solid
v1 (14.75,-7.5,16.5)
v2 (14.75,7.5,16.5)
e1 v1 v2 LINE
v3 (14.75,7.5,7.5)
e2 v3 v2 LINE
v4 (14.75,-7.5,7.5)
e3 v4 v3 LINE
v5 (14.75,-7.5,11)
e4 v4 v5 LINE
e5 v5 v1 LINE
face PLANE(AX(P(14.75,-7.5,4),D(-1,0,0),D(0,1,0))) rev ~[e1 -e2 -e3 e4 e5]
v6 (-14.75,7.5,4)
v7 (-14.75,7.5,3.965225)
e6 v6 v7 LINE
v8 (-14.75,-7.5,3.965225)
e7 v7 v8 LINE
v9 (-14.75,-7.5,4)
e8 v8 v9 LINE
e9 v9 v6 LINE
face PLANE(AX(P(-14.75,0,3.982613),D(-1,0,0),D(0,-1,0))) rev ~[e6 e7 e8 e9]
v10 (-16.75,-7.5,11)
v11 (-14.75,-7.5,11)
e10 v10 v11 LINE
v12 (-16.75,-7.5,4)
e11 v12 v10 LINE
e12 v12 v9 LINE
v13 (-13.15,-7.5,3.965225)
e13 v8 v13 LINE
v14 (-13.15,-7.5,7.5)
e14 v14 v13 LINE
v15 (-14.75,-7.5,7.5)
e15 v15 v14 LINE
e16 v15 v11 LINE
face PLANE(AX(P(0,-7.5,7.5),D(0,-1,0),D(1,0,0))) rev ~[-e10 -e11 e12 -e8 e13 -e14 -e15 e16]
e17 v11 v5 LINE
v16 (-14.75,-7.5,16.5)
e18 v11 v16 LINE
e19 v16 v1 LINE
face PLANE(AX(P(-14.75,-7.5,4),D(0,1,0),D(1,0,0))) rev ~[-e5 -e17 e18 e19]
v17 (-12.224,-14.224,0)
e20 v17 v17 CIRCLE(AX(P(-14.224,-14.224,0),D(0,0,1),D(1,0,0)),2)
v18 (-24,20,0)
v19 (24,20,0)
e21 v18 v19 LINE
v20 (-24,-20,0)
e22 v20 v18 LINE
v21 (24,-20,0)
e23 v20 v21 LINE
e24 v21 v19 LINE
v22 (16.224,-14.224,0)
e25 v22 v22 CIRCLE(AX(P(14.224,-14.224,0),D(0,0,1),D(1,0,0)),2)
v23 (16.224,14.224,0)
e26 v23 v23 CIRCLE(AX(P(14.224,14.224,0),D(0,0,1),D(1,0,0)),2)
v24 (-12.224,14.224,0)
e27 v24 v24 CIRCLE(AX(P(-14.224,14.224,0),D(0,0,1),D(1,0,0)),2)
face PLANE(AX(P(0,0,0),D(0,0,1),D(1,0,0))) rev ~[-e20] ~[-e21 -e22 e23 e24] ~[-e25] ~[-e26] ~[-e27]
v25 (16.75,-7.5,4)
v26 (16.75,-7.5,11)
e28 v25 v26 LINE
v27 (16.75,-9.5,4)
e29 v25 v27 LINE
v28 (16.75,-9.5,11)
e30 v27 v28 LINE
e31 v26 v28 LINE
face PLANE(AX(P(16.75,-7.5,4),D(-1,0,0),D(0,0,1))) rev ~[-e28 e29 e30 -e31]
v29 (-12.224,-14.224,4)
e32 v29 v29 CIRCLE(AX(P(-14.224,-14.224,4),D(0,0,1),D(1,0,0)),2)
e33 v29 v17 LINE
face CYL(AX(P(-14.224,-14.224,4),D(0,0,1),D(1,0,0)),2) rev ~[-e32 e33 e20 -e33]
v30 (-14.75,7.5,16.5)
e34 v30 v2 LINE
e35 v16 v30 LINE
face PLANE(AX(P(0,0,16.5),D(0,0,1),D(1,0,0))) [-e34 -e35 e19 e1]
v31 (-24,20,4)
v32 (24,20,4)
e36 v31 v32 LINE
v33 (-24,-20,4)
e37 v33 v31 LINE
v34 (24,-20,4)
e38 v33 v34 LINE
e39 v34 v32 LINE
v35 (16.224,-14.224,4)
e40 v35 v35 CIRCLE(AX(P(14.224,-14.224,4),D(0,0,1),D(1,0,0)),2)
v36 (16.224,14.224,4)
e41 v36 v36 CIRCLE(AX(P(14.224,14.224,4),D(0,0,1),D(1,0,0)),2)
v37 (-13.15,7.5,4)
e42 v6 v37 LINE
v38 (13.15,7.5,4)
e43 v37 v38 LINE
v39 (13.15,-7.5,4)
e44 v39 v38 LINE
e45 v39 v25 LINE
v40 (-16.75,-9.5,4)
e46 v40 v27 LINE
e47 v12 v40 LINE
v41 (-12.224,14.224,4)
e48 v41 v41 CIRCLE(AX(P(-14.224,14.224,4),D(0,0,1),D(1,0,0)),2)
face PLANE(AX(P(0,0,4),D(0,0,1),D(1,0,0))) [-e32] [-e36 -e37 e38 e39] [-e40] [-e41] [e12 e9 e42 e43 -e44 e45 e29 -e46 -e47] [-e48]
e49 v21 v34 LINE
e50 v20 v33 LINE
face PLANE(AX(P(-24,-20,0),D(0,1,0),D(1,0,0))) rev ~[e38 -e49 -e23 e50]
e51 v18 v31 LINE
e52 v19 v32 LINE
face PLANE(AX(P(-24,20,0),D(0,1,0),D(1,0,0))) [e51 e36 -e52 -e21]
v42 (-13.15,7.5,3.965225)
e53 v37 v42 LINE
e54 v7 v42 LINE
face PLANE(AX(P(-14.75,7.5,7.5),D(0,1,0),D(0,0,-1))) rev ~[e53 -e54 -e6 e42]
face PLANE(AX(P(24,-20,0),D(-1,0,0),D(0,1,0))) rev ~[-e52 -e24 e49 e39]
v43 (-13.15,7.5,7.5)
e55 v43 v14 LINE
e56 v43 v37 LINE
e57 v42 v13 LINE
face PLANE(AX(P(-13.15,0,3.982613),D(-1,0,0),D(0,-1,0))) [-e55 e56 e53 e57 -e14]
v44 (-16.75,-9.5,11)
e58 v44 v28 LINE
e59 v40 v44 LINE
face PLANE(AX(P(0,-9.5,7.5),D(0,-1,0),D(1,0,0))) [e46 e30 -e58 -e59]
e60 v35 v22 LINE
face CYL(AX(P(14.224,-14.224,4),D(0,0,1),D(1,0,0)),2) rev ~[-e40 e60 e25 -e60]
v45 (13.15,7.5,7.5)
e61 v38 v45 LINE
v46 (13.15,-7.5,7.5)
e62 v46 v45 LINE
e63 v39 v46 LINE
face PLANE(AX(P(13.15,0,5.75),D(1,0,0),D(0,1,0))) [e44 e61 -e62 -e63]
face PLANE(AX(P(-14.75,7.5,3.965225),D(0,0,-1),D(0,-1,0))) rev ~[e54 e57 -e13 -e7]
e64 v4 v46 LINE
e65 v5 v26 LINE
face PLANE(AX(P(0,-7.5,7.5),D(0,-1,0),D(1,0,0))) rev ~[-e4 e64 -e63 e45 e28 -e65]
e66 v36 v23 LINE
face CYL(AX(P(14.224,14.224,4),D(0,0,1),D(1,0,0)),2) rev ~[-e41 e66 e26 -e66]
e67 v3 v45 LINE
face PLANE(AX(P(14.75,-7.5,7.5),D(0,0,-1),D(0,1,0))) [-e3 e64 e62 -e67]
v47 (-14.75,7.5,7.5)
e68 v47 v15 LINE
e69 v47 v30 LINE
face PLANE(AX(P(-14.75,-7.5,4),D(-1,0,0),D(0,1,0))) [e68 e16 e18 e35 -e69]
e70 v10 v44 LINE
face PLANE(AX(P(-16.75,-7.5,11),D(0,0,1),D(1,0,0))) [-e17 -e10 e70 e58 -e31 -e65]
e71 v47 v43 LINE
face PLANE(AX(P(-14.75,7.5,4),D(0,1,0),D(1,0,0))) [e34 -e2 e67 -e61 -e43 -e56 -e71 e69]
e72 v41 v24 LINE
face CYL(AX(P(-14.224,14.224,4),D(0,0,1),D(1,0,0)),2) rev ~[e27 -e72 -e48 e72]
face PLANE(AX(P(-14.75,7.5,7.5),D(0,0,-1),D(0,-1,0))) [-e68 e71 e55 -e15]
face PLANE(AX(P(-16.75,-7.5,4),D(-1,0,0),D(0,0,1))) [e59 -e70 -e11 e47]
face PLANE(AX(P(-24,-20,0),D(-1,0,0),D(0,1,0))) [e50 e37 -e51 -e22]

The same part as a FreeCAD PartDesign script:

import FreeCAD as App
import Part
import Sketcher
Q = App.Units.Quantity

doc = App.newDocument("Part")
body = doc.addObject("PartDesign::Body", "Body")

# Sketch on XY plane
sketch1 = body.newObject("Sketcher::SketchObject", "Sketch")
sketch1.AttachmentSupport = (doc.getObject("XY_Plane"), [""])
sketch1.MapMode = "FlatFace"
sketch1.addGeometry([
    Part.LineSegment(App.Vector(-24, 20, 0), App.Vector(-24, -20, 0)),
    Part.LineSegment(App.Vector(-24, -20, 0), App.Vector(24, -20, 0)),
    Part.LineSegment(App.Vector(24, -20, 0), App.Vector(24, 20, 0)),
    Part.LineSegment(App.Vector(24, 20, 0), App.Vector(-24, 20, 0)),
], False)
sketch1.addConstraint([
    Sketcher.Constraint("Coincident", 0, 2, 1, 1),
    Sketcher.Constraint("Coincident", 1, 2, 2, 1),
    Sketcher.Constraint("Coincident", 2, 2, 3, 1),
    Sketcher.Constraint("Coincident", 3, 2, 0, 1),
    Sketcher.Constraint("Vertical", 0),
    Sketcher.Constraint("Horizontal", 1),
    Sketcher.Constraint("Vertical", 2),
    Sketcher.Constraint("Horizontal", 3),
    Sketcher.Constraint("Symmetric", 0, 2, 2, 2, -1, 1),
    Sketcher.Constraint("DistanceX", 1, 1, 1, 2, Q("48 mm")),
    Sketcher.Constraint("DistanceY", 0, 2, 0, 1, Q("40 mm")),
])
pad1 = body.newObject("PartDesign::Pad", "Pad")
pad1.Profile = sketch1
pad1.Length = 4

# Sketch on XY plane
sketch2 = body.newObject("Sketcher::SketchObject", "Sketch001")
sketch2.AttachmentSupport = (doc.getObject("XY_Plane"), [""])
sketch2.MapMode = "FlatFace"
sketch2.AttachmentOffset = App.Placement(App.Vector(0, 0, 4), App.Rotation())
sketch2.addGeometry([
    Part.Circle(App.Vector(-14.2, 14.2, 0), App.Vector(0, 0, 1), 2),
    Part.Circle(App.Vector(14.2, 14.2, 0), App.Vector(0, 0, 1), 2),
    Part.Circle(App.Vector(-14.2, -14.2, 0), App.Vector(0, 0, 1), 2),
    Part.Circle(App.Vector(14.2, -14.2, 0), App.Vector(0, 0, 1), 2),
], False)
sketch2.addConstraint([
    Sketcher.Constraint("Equal", 0, 1),
    Sketcher.Constraint("Equal", 1, 2),
    Sketcher.Constraint("Equal", 2, 3),
    Sketcher.Constraint("Symmetric", 1, 3, 2, 3, -1, 1),
    Sketcher.Constraint("Symmetric", 0, 3, 3, 3, -1, 1),
    Sketcher.Constraint("Symmetric", 0, 3, 1, 3, -2),
    Sketcher.Constraint("Diameter", 0, Q("4 mm")),
    Sketcher.Constraint("DistanceX", 0, 3, -1, 1, Q("14.224 mm")),
    Sketcher.Constraint("DistanceY", -1, 1, 0, 3, Q("14.224 mm")),
])
pocket1 = body.newObject("PartDesign::Pocket", "Pocket")
pocket1.Profile = sketch2
pocket1.Type = "ThroughAll"

# Sketch on XY plane
sketch3 = body.newObject("Sketcher::SketchObject", "Sketch002")
sketch3.AttachmentSupport = (doc.getObject("XY_Plane"), [""])
sketch3.MapMode = "FlatFace"
sketch3.AttachmentOffset = App.Placement(App.Vector(0, 0, 4), App.Rotation())
sketch3.addGeometry([
    Part.LineSegment(App.Vector(-15, 8, 0), App.Vector(-15, -8, 0)),
    Part.LineSegment(App.Vector(-15, -8, 0), App.Vector(15, -8, 0)),
    Part.LineSegment(App.Vector(15, -8, 0), App.Vector(15, 8, 0)),
    Part.LineSegment(App.Vector(15, 8, 0), App.Vector(-15, 8, 0)),
], False)
sketch3.addConstraint([
    Sketcher.Constraint("Coincident", 0, 2, 1, 1),
    Sketcher.Constraint("Coincident", 1, 2, 2, 1),
    Sketcher.Constraint("Coincident", 2, 2, 3, 1),
    Sketcher.Constraint("Coincident", 3, 2, 0, 1),
    Sketcher.Constraint("Vertical", 0),
    Sketcher.Constraint("Horizontal", 1),
    Sketcher.Constraint("Vertical", 2),
    Sketcher.Constraint("Horizontal", 3),
    Sketcher.Constraint("Symmetric", 0, 2, 2, 2, -1, 1),
    Sketcher.Constraint("DistanceY", 0, 2, 0, 1, Q("15 mm")),
    Sketcher.Constraint("DistanceX", 1, 1, 1, 2, Q("29.5 mm")),
])
pad2 = body.newObject("PartDesign::Pad", "Pad001")
pad2.Profile = sketch3
pad2.Length = 12.5

# Sketch on YZ plane
sketch4 = body.newObject("Sketcher::SketchObject", "Sketch003")
sketch4.AttachmentSupport = (doc.getObject("YZ_Plane"), [""])
sketch4.MapMode = "FlatFace"
sketch4.AttachmentOffset = App.Placement(App.Vector(0, 0, -14.75), App.Rotation())
sketch4.addGeometry([
    Part.LineSegment(App.Vector(7.5, 4, 0), App.Vector(-7.5, 4, 0)),
    Part.LineSegment(App.Vector(-7.5, 4, 0), App.Vector(-7.5, 7.5, 0)),
    Part.LineSegment(App.Vector(-7.5, 7.5, 0), App.Vector(7.5, 7.5, 0)),
    Part.LineSegment(App.Vector(7.5, 7.5, 0), App.Vector(7.5, 4, 0)),
], False)
sketch4.addConstraint([
    Sketcher.Constraint("Coincident", 0, 2, 1, 1),
    Sketcher.Constraint("Coincident", 1, 2, 2, 1),
    Sketcher.Constraint("Coincident", 2, 2, 3, 1),
    Sketcher.Constraint("Coincident", 3, 2, 0, 1),
    Sketcher.Constraint("Horizontal", 0),
    Sketcher.Constraint("Vertical", 1),
    Sketcher.Constraint("Horizontal", 2),
    Sketcher.Constraint("Vertical", 3),
    Sketcher.Constraint("DistanceX", 0, 2, 0, 1, Q("15 mm")),
    Sketcher.Constraint("DistanceX", 0, 2, -1, 1, Q("7.5 mm")),
    Sketcher.Constraint("DistanceY", -1, 1, 1, 2, Q("7.5 mm")),
    Sketcher.Constraint("DistanceY", 1, 1, 1, 2, Q("3.534775 mm")),
])
pocket2 = body.newObject("PartDesign::Pocket", "Pocket001")
pocket2.Profile = sketch4
pocket2.Length = 1.6
pocket2.Reversed = True

# Sketch on YZ plane
sketch5 = body.newObject("Sketcher::SketchObject", "Sketch004")
sketch5.AttachmentSupport = (doc.getObject("YZ_Plane"), [""])
sketch5.MapMode = "FlatFace"
sketch5.AttachmentOffset = App.Placement(App.Vector(0, 0, 14.75), App.Rotation())
sketch5.addGeometry([
    Part.LineSegment(App.Vector(-7.5, 7.5, 0), App.Vector(-7.5, 4, 0)),
    Part.LineSegment(App.Vector(-7.5, 4, 0), App.Vector(7.5, 4, 0)),
    Part.LineSegment(App.Vector(7.5, 4, 0), App.Vector(7.5, 7.5, 0)),
    Part.LineSegment(App.Vector(7.5, 7.5, 0), App.Vector(-7.5, 7.5, 0)),
], False)
sketch5.addConstraint([
    Sketcher.Constraint("Coincident", 0, 2, 1, 1),
    Sketcher.Constraint("Coincident", 1, 2, 2, 1),
    Sketcher.Constraint("Coincident", 2, 2, 3, 1),
    Sketcher.Constraint("Coincident", 3, 2, 0, 1),
    Sketcher.Constraint("Vertical", 0),
    Sketcher.Constraint("Horizontal", 1),
    Sketcher.Constraint("Vertical", 2),
    Sketcher.Constraint("Horizontal", 3),
    Sketcher.Constraint("DistanceX", 1, 1, 1, 2, Q("15 mm")),
    Sketcher.Constraint("DistanceY", 0, 2, 0, 1, Q("3.5 mm")),
    Sketcher.Constraint("DistanceY", -1, 1, 0, 2, Q("4 mm")),
    Sketcher.Constraint("DistanceX", 0, 2, -1, 1, Q("7.5 mm")),
])
pocket3 = body.newObject("PartDesign::Pocket", "Pocket002")
pocket3.Profile = sketch5
pocket3.Length = 1.6

# Sketch on YZ plane
sketch6 = body.newObject("Sketcher::SketchObject", "Sketch005")
sketch6.AttachmentSupport = (doc.getObject("YZ_Plane"), [""])
sketch6.MapMode = "FlatFace"
sketch6.AttachmentOffset = App.Placement(App.Vector(0, 0, -14.75), App.Rotation())
sketch6.addGeometry([
    Part.LineSegment(App.Vector(7.5, 4, 0), App.Vector(-7.5, 4, 0)),
    Part.LineSegment(App.Vector(-7.5, 4, 0), App.Vector(-7.5, 7.5, 0)),
    Part.LineSegment(App.Vector(-7.5, 7.5, 0), App.Vector(7.5, 7.5, 0)),
    Part.LineSegment(App.Vector(7.5, 7.5, 0), App.Vector(7.5, 4, 0)),
], False)
sketch6.addConstraint([
    Sketcher.Constraint("Coincident", 0, 2, 1, 1),
    Sketcher.Constraint("Coincident", 1, 2, 2, 1),
    Sketcher.Constraint("Coincident", 2, 2, 3, 1),
    Sketcher.Constraint("Coincident", 3, 2, 0, 1),
    Sketcher.Constraint("Horizontal", 0),
    Sketcher.Constraint("Vertical", 1),
    Sketcher.Constraint("Horizontal", 2),
    Sketcher.Constraint("Vertical", 3),
    Sketcher.Constraint("DistanceX", 0, 2, 0, 1, Q("15 mm")),
    Sketcher.Constraint("DistanceX", 0, 2, -1, 1, Q("7.5 mm")),
    Sketcher.Constraint("DistanceY", -1, 1, 1, 2, Q("7.5 mm")),
    Sketcher.Constraint("DistanceY", 1, 1, 1, 2, Q("3.534775 mm")),
])
pocket4 = body.newObject("PartDesign::Pocket", "Pocket003")
pocket4.Profile = sketch6
pocket4.Length = 1.6
pocket4.Reversed = True

# Sketch on XZ plane
sketch7 = body.newObject("Sketcher::SketchObject", "Sketch006")
sketch7.AttachmentSupport = (doc.getObject("XZ_Plane"), [""])
sketch7.MapMode = "FlatFace"
sketch7.AttachmentOffset = App.Placement(App.Vector(0, 0, 7.5), App.Rotation())
sketch7.addGeometry([
    Part.LineSegment(App.Vector(-17, 11, 0), App.Vector(-17, 4, 0)),
    Part.LineSegment(App.Vector(-17, 4, 0), App.Vector(17, 4, 0)),
    Part.LineSegment(App.Vector(17, 4, 0), App.Vector(17, 11, 0)),
    Part.LineSegment(App.Vector(17, 11, 0), App.Vector(-17, 11, 0)),
], False)
sketch7.addConstraint([
    Sketcher.Constraint("Coincident", 0, 2, 1, 1),
    Sketcher.Constraint("Coincident", 1, 2, 2, 1),
    Sketcher.Constraint("Coincident", 2, 2, 3, 1),
    Sketcher.Constraint("Coincident", 3, 2, 0, 1),
    Sketcher.Constraint("Vertical", 0),
    Sketcher.Constraint("Horizontal", 1),
    Sketcher.Constraint("Vertical", 2),
    Sketcher.Constraint("Horizontal", 3),
    Sketcher.Constraint("DistanceY", 0, 2, 0, 1, Q("7 mm")),
    Sketcher.Constraint("DistanceX", 1, 1, 1, 2, Q("33.5 mm")),
    Sketcher.Constraint("DistanceY", -1, 1, 0, 2, Q("4 mm")),
    Sketcher.Constraint("DistanceX", 0, 2, -1, 1, Q("16.75 mm")),
])
pad3 = body.newObject("PartDesign::Pad", "Pad002")
pad3.Profile = sketch7
pad3.Length = 2

doc.recompute()
